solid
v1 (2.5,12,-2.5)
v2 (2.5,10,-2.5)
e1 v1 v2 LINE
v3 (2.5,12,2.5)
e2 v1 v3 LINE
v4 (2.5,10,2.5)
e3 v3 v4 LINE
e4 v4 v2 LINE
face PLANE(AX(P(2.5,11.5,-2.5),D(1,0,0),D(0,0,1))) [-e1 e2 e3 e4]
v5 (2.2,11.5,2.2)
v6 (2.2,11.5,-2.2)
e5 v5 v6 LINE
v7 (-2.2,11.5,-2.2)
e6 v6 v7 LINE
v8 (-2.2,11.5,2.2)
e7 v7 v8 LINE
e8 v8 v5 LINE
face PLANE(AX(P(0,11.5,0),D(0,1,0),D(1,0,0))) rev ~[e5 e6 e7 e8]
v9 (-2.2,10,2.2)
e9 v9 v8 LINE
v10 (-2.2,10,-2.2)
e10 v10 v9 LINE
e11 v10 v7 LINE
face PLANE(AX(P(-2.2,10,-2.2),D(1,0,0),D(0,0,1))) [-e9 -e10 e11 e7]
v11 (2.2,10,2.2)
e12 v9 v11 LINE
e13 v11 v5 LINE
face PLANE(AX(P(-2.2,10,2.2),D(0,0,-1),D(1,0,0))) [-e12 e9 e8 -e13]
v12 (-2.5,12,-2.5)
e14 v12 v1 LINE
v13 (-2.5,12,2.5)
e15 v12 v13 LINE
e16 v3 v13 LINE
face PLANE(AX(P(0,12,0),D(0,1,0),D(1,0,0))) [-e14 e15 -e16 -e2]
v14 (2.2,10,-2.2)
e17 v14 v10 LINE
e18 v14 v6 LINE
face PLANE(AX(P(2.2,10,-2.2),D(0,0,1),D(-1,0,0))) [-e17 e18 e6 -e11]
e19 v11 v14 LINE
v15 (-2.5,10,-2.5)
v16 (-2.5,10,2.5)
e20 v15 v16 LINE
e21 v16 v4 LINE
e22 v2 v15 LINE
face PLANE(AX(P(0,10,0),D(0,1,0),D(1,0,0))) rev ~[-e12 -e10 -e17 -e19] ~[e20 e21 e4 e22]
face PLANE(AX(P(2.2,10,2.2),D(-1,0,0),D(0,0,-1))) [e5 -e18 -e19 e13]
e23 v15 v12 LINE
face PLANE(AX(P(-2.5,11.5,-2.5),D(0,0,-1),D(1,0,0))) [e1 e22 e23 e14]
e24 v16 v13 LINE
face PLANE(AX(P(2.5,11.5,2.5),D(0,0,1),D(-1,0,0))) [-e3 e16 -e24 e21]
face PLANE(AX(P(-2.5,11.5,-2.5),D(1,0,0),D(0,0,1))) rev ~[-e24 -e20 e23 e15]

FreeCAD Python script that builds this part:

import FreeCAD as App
import Part
import Sketcher

V = App.Vector
Q = App.Units.Quantity


def faces_at(feature, points):
    """Names of the faces that lie closest to the given points."""
    faces = feature.Shape.Faces
    near = lambda p: min(range(len(faces)), key=lambda i: faces[i].distToShape(Part.Vertex(*p))[0])
    return sorted({f"Face{near(p) + 1}" for p in points})


def add_polygon(sketch, points):
    """Adds a closed chain of lines whose ends are joined by coincident constraints."""
    first, n = sketch.GeometryCount, len(points)
    for a, b in zip(points, points[1:] + points[:1]):
        sketch.addGeometry(Part.LineSegment(App.Vector(*a, 0), App.Vector(*b, 0)), False)
    for i in range(n):
        sketch.addConstraint(Sketcher.Constraint("Coincident", first + i, 2, first + (i + 1) % n, 1))

doc = App.newDocument("Part")
body = doc.addObject("PartDesign::Body", "Body")

sketch1 = body.newObject("Sketcher::SketchObject", "Sketch")
sketch1.AttachmentSupport = (doc.getObject("XZ_Plane"), [""])
sketch1.MapMode = "FlatFace"
add_polygon(sketch1, [(-2, 2), (2, 2), (2, -2), (-2, -2)])
sketch1.addConstraint([
    Sketcher.Constraint("Horizontal", 0),
    Sketcher.Constraint("Vertical", 1),
    Sketcher.Constraint("Horizontal", 2),
    Sketcher.Constraint("Vertical", 3),
    Sketcher.Constraint("Symmetric", 0, 2, 2, 2, -1, 1),
    Sketcher.Constraint("Equal", 2, 1),
    Sketcher.Constraint("DistanceX", 0, 1, 0, 2, Q("5 mm")),
])
pad1 = body.newObject("PartDesign::Pad", "Pad")
pad1.Profile = sketch1
pad1.Length = 10
pad1.Reversed = True
doc.recompute()

thickness = body.newObject("PartDesign::Thickness", "Thickness")
thickness.Base = (pad1, faces_at(pad1, [(-0.833, 10, -0.833)]))
thickness.Value = 1
thickness.Reversed = True
thickness.Join = "Intersection"

sketch2 = body.newObject("Sketcher::SketchObject", "Sketch001")
sketch2.AttachmentSupport = (doc.getObject("XZ_Plane"), [""])
sketch2.MapMode = "FlatFace"
sketch2.AttachmentOffset = App.Placement(V(0, 0, -10), App.Rotation())
add_polygon(sketch2, [(2, -2), (-2, -2), (-2, 2), (2, 2)])
add_polygon(sketch2, [(-1.5, -1.5), (1.5, -1.5), (1.5, 1.5), (-1.5, 1.5)])
sketch2.addConstraint([
    Sketcher.Constraint("Horizontal", 0),
    Sketcher.Constraint("Vertical", 1),
    Sketcher.Constraint("Horizontal", 2),
    Sketcher.Constraint("Vertical", 3),
    Sketcher.Constraint("Horizontal", 4),
    Sketcher.Constraint("Vertical", 5),
    Sketcher.Constraint("Horizontal", 6),
    Sketcher.Constraint("Vertical", 7),
    Sketcher.Constraint("Symmetric", 0, 2, 2, 2, -1, 1),
    Sketcher.Constraint("Symmetric", 4, 2, 6, 2, -1, 1),
    Sketcher.Constraint("Equal", 2, 1),
    Sketcher.Constraint("Equal", 6, 5),
    Sketcher.Constraint("DistanceX", 4, 2, 3, 2, Q("0.5 mm")),
    Sketcher.Constraint("DistanceX", 0, 2, 0, 1, Q("4 mm")),
])
pad2 = body.newObject("PartDesign::Pad", "Pad001")
pad2.Profile = sketch2
pad2.Length = 1
pad2.Reversed = True

sketch3 = body.newObject("Sketcher::SketchObject", "Sketch002")
sketch3.AttachmentSupport = (doc.getObject("XZ_Plane"), [""])
sketch3.MapMode = "FlatFace"
sketch3.AttachmentOffset = App.Placement(V(0, 0, -10), App.Rotation())
add_polygon(sketch3, [(2, 2), (2, -2), (-2, -2), (-2, 2)])
sketch3.addConstraint([
    Sketcher.Constraint("Vertical", 0),
    Sketcher.Constraint("Horizontal", 1),
    Sketcher.Constraint("Vertical", 2),
    Sketcher.Constraint("Horizontal", 3),
    Sketcher.Constraint("Symmetric", 0, 2, 2, 2, -1, 1),
    Sketcher.Constraint("Equal", 3, 0),
    Sketcher.Constraint("DistanceX", 1, 2, 1, 1, Q("5 mm")),
])
pocket1 = body.newObject("PartDesign::Pocket", "Pocket")
pocket1.Profile = sketch3
pocket1.Type = "ThroughAll"
pocket1.Midplane = True

sketch4 = body.newObject("Sketcher::SketchObject", "Sketch003")
sketch4.AttachmentSupport = (doc.getObject("XZ_Plane"), [""])
sketch4.MapMode = "FlatFace"
sketch4.AttachmentOffset = App.Placement(V(0, 0, -10), App.Rotation())
add_polygon(sketch4, [(2.5, 2.5), (2.5, -2.5), (-2.5, -2.5), (-2.5, 2.5)])
add_polygon(sketch4, [(2, 2), (-2, 2), (-2, -2), (2, -2)])
sketch4.addConstraint([
    Sketcher.Constraint("Vertical", 0),
    Sketcher.Constraint("Horizontal", 1),
    Sketcher.Constraint("Vertical", 2),
    Sketcher.Constraint("Horizontal", 3),
    Sketcher.Constraint("Horizontal", 4),
    Sketcher.Constraint("Vertical", 5),
    Sketcher.Constraint("Horizontal", 6),
    Sketcher.Constraint("Vertical", 7),
    Sketcher.Constraint("Symmetric", 0, 2, 2, 2, -1, 1),
    Sketcher.Constraint("Symmetric", 4, 2, 6, 2, -1, 1),
    Sketcher.Constraint("Equal", 3, 0),
    Sketcher.Constraint("Equal", 6, 5),
    Sketcher.Constraint("DistanceX", 1, 2, 1, 1, Q("5 mm")),
    Sketcher.Constraint("DistanceX", 4, 2, 4, 1, Q("4 mm")),
])
pad3 = body.newObject("PartDesign::Pad", "Pad002")
pad3.Profile = sketch4
pad3.Length = 1.5
pad3.Reversed = True

sketch5 = body.newObject("Sketcher::SketchObject", "Sketch004")
sketch5.AttachmentSupport = (doc.getObject("XZ_Plane"), [""])
sketch5.MapMode = "FlatFace"
sketch5.AttachmentOffset = App.Placement(V(0, 0, -10), App.Rotation())
add_polygon(sketch5, [(-2.2, 2.2), (-2.2, -2.2), (2.2, -2.2), (2.2, 2.2)])
sketch5.addConstraint([
    Sketcher.Constraint("Vertical", 0),
    Sketcher.Constraint("Horizontal", 1),
    Sketcher.Constraint("Vertical", 2),
    Sketcher.Constraint("Horizontal", 3),
    Sketcher.Constraint("Symmetric", 0, 2, 2, 2, -1, 1),
    Sketcher.Constraint("Equal", 3, 0),
    Sketcher.Constraint("DistanceX", 1, 1, 1, 2, Q("4.4 mm")),
])
pocket2 = body.newObject("PartDesign::Pocket", "Pocket001")
pocket2.Profile = sketch5
pocket2.Length = 1.5

sketch6 = body.newObject("Sketcher::SketchObject", "Sketch005")
sketch6.AttachmentSupport = (doc.getObject("XZ_Plane"), [""])
sketch6.MapMode = "FlatFace"
sketch6.AttachmentOffset = App.Placement(V(0, 0, -11.5), App.Rotation())
add_polygon(sketch6, [(2, -2), (-2, -2), (-2, 2), (2, 2)])
sketch6.addConstraint([
    Sketcher.Constraint("Horizontal", 0),
    Sketcher.Constraint("Vertical", 1),
    Sketcher.Constraint("Horizontal", 2),
    Sketcher.Constraint("Vertical", 3),
    Sketcher.Constraint("Symmetric", 0, 2, 2, 2, -1, 1),
    Sketcher.Constraint("Equal", 2, 1),
    Sketcher.Constraint("DistanceX", 0, 2, 0, 1, Q("5 mm")),
])
pad4 = body.newObject("PartDesign::Pad", "Pad003")
pad4.Profile = sketch6
pad4.Length = 0.5
pad4.Reversed = True

doc.recompute()
